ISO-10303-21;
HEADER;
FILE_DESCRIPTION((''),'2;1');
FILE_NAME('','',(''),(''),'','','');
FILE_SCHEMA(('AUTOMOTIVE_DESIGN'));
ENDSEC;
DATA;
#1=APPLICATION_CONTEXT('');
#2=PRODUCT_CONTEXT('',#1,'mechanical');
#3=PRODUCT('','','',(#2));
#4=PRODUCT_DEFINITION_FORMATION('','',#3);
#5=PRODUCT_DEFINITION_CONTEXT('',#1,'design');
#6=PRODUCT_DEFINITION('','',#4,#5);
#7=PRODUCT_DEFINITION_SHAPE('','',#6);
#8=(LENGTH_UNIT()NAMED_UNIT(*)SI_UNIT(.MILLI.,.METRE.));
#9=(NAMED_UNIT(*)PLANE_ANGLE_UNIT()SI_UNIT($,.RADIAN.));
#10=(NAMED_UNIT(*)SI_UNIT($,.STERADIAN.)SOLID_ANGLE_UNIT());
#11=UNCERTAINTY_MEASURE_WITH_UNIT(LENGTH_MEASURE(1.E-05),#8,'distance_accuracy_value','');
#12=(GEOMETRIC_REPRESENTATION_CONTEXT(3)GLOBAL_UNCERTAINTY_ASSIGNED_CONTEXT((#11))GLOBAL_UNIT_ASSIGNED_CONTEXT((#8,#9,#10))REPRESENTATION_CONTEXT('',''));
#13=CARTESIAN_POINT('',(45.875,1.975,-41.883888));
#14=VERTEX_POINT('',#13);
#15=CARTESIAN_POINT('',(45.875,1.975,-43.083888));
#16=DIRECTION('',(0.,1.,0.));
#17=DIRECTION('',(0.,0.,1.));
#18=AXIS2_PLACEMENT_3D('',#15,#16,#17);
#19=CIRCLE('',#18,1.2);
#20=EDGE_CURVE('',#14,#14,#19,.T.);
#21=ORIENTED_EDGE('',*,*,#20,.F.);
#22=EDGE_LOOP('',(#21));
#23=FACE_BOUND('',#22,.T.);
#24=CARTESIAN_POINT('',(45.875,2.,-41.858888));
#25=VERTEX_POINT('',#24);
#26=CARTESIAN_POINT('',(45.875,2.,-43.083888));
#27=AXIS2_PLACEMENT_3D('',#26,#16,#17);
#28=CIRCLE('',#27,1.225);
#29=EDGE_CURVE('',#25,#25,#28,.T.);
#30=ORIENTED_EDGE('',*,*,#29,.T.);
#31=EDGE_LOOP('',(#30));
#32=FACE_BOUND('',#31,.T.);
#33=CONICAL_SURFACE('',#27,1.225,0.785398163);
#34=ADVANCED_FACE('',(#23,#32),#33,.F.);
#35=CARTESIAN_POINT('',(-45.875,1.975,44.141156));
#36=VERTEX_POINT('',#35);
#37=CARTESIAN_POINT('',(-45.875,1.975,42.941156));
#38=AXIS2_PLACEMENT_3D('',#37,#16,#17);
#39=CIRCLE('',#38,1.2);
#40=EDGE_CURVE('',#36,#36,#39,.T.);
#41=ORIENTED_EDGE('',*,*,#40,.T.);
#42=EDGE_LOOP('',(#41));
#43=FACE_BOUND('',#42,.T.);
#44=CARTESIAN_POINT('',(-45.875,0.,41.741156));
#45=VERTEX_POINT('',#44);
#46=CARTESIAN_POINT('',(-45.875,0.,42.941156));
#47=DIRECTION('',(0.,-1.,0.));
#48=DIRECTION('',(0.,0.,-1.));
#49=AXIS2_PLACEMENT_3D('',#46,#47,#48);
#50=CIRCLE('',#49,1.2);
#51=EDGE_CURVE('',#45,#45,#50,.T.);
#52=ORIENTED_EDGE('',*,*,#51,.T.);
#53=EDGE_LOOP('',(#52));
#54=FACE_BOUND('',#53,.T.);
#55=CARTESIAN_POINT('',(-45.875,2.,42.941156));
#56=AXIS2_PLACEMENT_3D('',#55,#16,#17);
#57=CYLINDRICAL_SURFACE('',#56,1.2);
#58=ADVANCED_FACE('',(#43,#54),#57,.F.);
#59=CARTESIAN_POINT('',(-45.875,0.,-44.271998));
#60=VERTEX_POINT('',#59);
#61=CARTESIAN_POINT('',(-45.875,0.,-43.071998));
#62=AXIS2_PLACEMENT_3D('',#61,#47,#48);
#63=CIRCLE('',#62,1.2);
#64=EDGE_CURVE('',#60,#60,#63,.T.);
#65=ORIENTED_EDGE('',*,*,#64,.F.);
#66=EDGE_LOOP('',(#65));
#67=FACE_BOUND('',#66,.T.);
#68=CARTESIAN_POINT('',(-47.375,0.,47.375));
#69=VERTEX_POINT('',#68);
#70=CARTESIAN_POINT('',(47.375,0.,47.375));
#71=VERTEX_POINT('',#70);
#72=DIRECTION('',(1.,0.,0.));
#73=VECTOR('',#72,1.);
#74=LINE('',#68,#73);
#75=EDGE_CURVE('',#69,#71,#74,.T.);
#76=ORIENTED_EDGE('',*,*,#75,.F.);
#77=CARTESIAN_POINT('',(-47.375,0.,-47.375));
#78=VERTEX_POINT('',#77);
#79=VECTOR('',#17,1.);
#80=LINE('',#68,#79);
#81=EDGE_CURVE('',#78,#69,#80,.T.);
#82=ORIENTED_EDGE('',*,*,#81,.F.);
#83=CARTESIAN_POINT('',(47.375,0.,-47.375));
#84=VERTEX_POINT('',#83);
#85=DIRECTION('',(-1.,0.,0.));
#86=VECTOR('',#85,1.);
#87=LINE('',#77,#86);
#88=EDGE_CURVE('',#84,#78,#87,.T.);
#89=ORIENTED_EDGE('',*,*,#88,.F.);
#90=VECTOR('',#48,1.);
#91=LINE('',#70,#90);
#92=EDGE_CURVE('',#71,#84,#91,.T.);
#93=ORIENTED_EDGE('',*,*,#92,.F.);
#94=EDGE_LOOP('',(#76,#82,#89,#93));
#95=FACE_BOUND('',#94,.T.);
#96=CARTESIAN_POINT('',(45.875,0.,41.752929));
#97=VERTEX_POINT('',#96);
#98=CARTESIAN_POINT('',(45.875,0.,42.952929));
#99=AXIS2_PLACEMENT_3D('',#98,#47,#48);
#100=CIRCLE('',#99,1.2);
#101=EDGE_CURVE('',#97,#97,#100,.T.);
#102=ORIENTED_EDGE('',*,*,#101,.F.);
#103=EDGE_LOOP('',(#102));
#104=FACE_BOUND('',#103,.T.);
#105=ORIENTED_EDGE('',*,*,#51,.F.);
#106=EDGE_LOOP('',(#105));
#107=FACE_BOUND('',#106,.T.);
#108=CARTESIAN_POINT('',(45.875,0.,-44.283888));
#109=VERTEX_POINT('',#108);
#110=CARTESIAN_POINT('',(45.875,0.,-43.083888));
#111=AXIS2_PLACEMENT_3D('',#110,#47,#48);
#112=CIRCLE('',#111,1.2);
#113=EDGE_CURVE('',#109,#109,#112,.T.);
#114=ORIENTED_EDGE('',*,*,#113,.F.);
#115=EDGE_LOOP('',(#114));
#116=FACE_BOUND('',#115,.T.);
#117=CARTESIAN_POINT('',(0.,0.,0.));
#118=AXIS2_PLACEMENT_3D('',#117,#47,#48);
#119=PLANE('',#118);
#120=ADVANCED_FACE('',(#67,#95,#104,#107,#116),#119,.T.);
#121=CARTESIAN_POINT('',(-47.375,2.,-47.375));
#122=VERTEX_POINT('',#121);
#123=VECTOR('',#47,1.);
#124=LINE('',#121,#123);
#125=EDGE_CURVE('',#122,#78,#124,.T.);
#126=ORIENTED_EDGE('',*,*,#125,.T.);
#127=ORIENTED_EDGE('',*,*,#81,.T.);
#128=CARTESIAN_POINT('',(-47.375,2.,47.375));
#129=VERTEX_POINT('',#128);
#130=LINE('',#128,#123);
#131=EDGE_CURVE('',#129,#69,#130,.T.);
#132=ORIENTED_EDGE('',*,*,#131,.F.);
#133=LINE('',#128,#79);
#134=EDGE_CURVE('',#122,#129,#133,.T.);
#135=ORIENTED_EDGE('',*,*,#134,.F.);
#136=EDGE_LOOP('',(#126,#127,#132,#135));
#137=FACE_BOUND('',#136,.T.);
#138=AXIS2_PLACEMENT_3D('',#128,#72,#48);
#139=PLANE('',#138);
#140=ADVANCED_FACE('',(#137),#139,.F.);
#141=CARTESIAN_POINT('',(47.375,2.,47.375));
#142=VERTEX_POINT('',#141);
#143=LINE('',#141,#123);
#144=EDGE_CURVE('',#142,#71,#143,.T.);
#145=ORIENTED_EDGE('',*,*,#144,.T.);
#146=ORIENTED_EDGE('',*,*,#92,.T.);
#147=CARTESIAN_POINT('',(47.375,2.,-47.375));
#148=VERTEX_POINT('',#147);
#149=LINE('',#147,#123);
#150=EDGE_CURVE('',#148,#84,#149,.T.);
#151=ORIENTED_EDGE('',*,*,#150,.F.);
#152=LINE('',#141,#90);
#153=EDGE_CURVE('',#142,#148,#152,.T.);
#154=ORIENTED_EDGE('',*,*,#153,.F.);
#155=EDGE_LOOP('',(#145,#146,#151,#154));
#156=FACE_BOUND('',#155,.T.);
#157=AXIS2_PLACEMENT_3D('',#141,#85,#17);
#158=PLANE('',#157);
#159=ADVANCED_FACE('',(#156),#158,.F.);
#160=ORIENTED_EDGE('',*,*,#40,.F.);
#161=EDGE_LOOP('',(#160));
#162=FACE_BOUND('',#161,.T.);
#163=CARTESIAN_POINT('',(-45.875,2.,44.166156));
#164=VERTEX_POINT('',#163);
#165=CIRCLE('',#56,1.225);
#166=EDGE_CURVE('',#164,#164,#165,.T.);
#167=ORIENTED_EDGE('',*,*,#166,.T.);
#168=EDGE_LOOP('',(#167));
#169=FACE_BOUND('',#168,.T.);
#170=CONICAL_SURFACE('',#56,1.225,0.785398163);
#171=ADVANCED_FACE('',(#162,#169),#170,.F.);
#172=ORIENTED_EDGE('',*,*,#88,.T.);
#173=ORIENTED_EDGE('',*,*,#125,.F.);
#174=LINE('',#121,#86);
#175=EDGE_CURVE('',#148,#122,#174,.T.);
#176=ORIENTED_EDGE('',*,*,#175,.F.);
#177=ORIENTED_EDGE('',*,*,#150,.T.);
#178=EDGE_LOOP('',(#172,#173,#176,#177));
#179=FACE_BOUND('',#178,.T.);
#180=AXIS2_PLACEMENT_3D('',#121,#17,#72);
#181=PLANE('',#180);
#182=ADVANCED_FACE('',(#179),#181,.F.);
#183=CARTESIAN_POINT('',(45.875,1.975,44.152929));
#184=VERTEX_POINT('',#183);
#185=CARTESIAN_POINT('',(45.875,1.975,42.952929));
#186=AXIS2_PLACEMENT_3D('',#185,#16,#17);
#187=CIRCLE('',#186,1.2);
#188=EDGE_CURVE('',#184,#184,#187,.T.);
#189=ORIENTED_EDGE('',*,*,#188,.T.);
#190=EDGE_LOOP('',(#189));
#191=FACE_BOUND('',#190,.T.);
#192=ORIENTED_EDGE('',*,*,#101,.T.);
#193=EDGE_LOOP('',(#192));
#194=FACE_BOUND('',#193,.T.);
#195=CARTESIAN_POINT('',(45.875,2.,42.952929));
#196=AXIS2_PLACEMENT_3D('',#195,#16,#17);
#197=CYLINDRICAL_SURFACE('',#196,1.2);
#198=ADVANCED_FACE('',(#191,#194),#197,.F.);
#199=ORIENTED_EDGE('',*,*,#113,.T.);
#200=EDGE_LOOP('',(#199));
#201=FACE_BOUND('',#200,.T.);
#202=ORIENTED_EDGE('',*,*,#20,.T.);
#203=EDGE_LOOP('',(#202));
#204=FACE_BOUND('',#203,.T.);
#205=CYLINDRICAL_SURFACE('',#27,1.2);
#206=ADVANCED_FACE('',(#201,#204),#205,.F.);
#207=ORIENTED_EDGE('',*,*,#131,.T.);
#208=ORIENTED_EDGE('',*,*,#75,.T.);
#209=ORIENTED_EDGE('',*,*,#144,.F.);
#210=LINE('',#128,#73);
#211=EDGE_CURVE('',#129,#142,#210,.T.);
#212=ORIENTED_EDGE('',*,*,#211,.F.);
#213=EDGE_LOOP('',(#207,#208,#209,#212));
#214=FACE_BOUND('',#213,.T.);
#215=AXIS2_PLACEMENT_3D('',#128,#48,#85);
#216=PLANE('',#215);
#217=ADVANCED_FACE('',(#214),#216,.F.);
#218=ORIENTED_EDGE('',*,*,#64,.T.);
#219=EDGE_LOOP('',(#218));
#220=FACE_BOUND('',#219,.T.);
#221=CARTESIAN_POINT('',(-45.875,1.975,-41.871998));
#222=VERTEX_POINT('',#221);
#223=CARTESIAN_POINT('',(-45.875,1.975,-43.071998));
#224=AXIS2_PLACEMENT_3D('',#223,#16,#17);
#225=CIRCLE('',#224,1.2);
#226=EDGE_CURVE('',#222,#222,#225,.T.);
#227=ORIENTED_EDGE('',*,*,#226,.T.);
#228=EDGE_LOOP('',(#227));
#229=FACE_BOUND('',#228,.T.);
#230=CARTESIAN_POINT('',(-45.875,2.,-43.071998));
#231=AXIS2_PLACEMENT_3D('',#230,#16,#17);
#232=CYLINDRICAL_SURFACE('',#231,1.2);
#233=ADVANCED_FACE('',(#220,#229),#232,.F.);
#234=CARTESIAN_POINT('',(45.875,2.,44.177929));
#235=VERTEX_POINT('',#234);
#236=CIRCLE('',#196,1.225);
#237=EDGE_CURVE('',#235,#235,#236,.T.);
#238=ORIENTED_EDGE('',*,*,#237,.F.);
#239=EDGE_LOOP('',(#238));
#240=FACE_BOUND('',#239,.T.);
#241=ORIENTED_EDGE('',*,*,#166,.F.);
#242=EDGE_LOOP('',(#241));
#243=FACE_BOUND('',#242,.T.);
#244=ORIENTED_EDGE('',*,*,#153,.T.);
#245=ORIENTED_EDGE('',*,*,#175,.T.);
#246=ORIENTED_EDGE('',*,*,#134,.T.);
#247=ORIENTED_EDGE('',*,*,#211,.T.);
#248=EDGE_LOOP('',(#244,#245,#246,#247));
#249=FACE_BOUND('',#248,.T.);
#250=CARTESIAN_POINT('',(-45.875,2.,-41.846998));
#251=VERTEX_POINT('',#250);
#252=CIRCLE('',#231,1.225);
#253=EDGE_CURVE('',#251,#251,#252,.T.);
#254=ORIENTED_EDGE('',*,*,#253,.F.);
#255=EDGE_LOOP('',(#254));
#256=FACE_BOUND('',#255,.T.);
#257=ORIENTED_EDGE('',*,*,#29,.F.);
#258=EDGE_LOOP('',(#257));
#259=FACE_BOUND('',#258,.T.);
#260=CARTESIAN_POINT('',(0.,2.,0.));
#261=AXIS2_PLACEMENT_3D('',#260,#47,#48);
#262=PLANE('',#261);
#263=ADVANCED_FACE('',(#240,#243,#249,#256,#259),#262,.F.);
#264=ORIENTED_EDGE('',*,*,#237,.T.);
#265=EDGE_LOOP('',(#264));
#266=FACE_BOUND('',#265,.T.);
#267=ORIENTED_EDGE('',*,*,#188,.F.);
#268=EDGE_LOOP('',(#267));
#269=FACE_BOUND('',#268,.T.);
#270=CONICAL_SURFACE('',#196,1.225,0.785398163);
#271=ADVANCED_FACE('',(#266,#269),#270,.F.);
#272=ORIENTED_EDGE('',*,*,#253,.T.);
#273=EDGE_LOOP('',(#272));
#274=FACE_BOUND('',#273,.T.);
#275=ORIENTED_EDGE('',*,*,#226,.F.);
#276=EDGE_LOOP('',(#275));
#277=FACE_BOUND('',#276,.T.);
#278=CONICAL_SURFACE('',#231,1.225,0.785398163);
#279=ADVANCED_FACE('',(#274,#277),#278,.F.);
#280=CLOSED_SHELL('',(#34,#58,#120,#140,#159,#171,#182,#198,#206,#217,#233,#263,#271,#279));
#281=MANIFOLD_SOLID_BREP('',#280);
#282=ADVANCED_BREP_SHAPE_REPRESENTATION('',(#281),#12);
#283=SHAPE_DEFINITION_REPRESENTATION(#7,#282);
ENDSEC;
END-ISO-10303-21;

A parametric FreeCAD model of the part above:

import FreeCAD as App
import Part
import Sketcher

V = App.Vector
Q = App.Units.Quantity


def add_polygon(sketch, points):
    """Adds a closed chain of lines whose ends are joined by coincident constraints."""
    first, n = sketch.GeometryCount, len(points)
    for a, b in zip(points, points[1:] + points[:1]):
        sketch.addGeometry(Part.LineSegment(App.Vector(*a, 0), App.Vector(*b, 0)), False)
    for i in range(n):
        sketch.addConstraint(Sketcher.Constraint("Coincident", first + i, 2, first + (i + 1) % n, 1))

doc = App.newDocument("Part")
body = doc.addObject("PartDesign::Body", "Body")

# Sketch on XZ plane
sketch1 = doc.addObject("Sketcher::SketchObject", "Sketch")
body.addObject(sketch1)
sketch1.AttachmentSupport = (doc.XZ_Plane, [""])
sketch1.MapMode = "FlatFace"
add_polygon(sketch1, [(-47, -47), (-47, 47), (47, 47), (47, -47)])  # lines 0-3
sketch1.addConstraint(Sketcher.Constraint("Vertical", 0))
sketch1.addConstraint(Sketcher.Constraint("Horizontal", 1))
sketch1.addConstraint(Sketcher.Constraint("Vertical", 2))
sketch1.addConstraint(Sketcher.Constraint("Horizontal", 3))
sketch1.addConstraint(Sketcher.Constraint("Symmetric", 0, 2, 2, 2, -1, 1))
sketch1.addConstraint(Sketcher.Constraint("Equal", 3, 0))
sketch1.addConstraint(Sketcher.Constraint("DistanceX", 1, 1, 1, 2, Q("94.75 mm")))
pad1 = doc.addObject("PartDesign::Pad", "Pad")
body.addObject(pad1)
pad1.Profile = sketch1
pad1.Length = 2
pad1.Reversed = True

# Sketch on XZ plane
sketch2 = doc.addObject("Sketcher::SketchObject", "Sketch001")
body.addObject(sketch2)
sketch2.AttachmentSupport = (doc.XZ_Plane, [""])
sketch2.MapMode = "FlatFace"
sketch2.AttachmentOffset = App.Placement(V(0, 0, -2), App.Rotation())
sketch2.addGeometry(Part.Circle(V(45.9, -43.1, 0), V(0, 0, 1), 1.2), False)
sketch2.addGeometry(Part.Circle(V(-45.9, -43.1, 0), V(0, 0, 1), 1.2), False)
sketch2.addGeometry(Part.Circle(V(-45.9, 42.9, 0), V(0, 0, 1), 1.2), False)
sketch2.addGeometry(Part.Circle(V(45.9, 43, 0), V(0, 0, 1), 1.2), False)
sketch2.addConstraint(Sketcher.Constraint("Equal", 0, 1))
sketch2.addConstraint(Sketcher.Constraint("Equal", 1, 2))
sketch2.addConstraint(Sketcher.Constraint("Equal", 2, 3))
sketch2.addConstraint(Sketcher.Constraint("Vertical", 1, 3, 2, 3))
sketch2.addConstraint(Sketcher.Constraint("Vertical", 0, 3, 3, 3))
sketch2.addConstraint(Sketcher.Constraint("Diameter", 0, Q("2.4 mm")))
sketch2.addConstraint(Sketcher.Constraint("DistanceX", 1, 3, 0, 3, Q("91.75 mm")))
sketch2.addConstraint(Sketcher.Constraint("DistanceX", -1, 1, 0, 3, Q("45.875 mm")))
sketch2.addConstraint(Sketcher.Constraint("DistanceY", 1, 3, -1, 1, Q("43.071998 mm")))
sketch2.addConstraint(Sketcher.Constraint("DistanceY", 0, 3, -1, 1, Q("43.083888 mm")))
sketch2.addConstraint(Sketcher.Constraint("DistanceY", -1, 1, 3, 3, Q("42.952929 mm")))
sketch2.addConstraint(Sketcher.Constraint("DistanceY", -1, 1, 2, 3, Q("42.941156 mm")))
doc.recompute()
hole = doc.addObject("PartDesign::Hole", "Hole")
body.addObject(hole)
hole.Profile = sketch2
hole.ThreadType = "None"
hole.Diameter = 2.4
hole.DepthType = "ThroughAll"
hole.HoleCutType = "Countersink"
hole.HoleCutDiameter = 2.45
hole.HoleCutCountersinkAngle = 90
hole.Reversed = True

doc.recompute()
